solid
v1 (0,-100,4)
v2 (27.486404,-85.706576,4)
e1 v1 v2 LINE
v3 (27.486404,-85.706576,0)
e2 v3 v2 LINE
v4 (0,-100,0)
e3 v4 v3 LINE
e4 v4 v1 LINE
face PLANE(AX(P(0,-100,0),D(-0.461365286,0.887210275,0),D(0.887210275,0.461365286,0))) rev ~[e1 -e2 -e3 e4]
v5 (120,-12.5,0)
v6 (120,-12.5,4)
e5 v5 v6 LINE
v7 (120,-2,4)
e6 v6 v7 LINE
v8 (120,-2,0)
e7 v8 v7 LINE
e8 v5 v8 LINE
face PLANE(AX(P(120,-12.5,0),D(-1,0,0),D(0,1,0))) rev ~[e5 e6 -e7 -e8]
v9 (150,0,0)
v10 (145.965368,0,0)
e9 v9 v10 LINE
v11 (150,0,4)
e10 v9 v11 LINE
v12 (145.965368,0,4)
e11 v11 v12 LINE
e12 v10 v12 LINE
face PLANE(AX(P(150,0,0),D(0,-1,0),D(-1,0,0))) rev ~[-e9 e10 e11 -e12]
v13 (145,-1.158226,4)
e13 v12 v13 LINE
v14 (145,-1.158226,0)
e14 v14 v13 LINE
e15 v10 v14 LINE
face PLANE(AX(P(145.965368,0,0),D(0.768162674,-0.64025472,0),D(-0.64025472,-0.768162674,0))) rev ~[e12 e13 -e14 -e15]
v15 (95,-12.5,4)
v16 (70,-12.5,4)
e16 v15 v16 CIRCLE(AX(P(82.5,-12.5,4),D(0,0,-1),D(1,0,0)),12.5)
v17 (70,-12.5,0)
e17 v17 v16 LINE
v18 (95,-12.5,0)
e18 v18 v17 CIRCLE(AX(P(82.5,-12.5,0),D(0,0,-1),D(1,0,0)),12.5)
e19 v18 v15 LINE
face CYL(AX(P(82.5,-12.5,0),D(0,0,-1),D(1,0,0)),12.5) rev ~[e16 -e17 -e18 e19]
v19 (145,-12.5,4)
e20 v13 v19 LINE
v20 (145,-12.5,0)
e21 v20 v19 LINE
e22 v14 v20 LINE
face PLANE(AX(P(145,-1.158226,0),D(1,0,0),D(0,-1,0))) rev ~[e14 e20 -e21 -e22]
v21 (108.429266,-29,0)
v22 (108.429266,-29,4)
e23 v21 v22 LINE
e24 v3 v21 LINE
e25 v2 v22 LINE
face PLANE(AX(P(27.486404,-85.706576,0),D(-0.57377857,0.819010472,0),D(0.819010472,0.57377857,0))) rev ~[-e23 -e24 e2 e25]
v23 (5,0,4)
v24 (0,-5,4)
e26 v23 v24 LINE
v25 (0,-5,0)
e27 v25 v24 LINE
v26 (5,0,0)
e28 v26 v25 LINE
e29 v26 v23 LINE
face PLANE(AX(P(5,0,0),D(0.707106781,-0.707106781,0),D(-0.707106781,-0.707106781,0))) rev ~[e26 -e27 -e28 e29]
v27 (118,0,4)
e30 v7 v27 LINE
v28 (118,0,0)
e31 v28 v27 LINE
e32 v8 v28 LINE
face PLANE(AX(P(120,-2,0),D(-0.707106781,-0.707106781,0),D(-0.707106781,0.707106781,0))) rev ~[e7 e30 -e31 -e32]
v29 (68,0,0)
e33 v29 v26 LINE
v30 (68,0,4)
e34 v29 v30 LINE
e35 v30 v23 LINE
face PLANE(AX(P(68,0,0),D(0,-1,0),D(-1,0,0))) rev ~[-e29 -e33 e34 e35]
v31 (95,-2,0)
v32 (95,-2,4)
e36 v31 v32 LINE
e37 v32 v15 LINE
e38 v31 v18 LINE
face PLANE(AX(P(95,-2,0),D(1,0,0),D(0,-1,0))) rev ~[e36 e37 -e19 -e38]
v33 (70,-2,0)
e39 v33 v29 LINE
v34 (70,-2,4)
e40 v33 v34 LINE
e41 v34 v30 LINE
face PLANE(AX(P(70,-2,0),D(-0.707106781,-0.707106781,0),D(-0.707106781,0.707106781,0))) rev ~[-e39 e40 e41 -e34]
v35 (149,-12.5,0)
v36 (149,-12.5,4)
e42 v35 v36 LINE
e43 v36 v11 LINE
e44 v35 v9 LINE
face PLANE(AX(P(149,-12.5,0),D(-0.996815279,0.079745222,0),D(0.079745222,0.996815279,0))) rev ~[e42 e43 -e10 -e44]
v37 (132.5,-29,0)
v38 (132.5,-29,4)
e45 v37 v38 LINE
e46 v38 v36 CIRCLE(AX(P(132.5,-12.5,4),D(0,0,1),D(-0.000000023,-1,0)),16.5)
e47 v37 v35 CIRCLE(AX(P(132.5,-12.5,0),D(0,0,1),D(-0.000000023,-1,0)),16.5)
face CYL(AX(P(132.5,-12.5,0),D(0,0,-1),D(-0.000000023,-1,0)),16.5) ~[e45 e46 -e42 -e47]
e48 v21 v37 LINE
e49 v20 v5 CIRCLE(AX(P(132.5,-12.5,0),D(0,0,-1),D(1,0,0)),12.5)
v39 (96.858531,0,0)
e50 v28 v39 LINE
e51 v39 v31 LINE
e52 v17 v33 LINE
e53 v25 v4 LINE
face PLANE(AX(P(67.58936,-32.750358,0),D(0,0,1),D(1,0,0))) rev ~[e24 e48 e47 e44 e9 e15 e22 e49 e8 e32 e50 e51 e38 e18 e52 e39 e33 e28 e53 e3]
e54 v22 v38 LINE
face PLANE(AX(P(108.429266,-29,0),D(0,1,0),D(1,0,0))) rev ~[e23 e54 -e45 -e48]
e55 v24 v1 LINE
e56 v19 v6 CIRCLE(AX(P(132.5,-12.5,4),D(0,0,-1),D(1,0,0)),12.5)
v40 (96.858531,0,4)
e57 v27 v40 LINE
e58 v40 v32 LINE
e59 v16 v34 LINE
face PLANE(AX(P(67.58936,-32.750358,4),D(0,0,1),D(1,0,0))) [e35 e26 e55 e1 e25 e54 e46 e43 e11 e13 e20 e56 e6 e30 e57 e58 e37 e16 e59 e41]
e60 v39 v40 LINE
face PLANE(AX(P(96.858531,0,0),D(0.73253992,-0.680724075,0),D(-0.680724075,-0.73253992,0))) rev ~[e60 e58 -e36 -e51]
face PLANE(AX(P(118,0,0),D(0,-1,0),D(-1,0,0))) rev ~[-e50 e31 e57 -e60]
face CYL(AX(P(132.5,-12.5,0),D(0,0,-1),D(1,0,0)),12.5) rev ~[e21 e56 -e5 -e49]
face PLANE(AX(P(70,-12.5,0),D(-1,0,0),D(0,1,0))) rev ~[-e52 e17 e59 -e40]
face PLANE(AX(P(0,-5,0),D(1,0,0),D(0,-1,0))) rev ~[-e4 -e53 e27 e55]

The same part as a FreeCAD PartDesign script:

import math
import FreeCAD as App
import Part
import Sketcher

V = App.Vector
Q = App.Units.Quantity

doc = App.newDocument("Part")
body = doc.addObject("PartDesign::Body", "Body")

sketch1 = doc.addObject("Sketcher::SketchObject", "Sketch")
body.addObject(sketch1)
sketch1.AttachmentSupport = (doc.XY_Plane, [""])
sketch1.MapMode = "FlatFace"
sketch1.addGeometry([
    Part.LineSegment(V(5, 0, 0), V(0, -5, 0)),
    Part.LineSegment(V(0, -5, 0), V(0, -100, 0)),
    Part.LineSegment(V(0, -100, 0), V(27.5, -85.7, 0)),
    Part.LineSegment(V(27.5, -85.7, 0), V(108.4, -29, 0)),
    Part.LineSegment(V(108.4, -29, 0), V(132.5, -29, 0)),
    Part.ArcOfCircle(Part.Circle(V(132.5, -12.5, 0), V(0, 0, 1), 16.5), math.radians(-90), math.radians(0)),
    Part.LineSegment(V(149, -12.5, 0), V(150, 0, 0)),
    Part.LineSegment(V(150, 0, 0), V(146, 0, 0)),
    Part.LineSegment(V(146, 0, 0), V(145, -1.2, 0)),
    Part.LineSegment(V(145, -1.2, 0), V(145, -12.5, 0)),
    Part.ArcOfCircle(Part.Circle(V(132.5, -12.5, 0), V(0, 0, 1), 12.5), math.radians(180), math.radians(360)),
    Part.LineSegment(V(120, -12.5, 0), V(120, -2, 0)),
    Part.LineSegment(V(120, -2, 0), V(118, 0, 0)),
    Part.LineSegment(V(118, 0, 0), V(96.9, 0, 0)),
    Part.LineSegment(V(96.9, 0, 0), V(95, -2, 0)),
    Part.LineSegment(V(95, -2, 0), V(95, -12.5, 0)),
    Part.ArcOfCircle(Part.Circle(V(82.5, -12.5, 0), V(0, 0, 1), 12.5), math.radians(180), math.radians(360)),
    Part.LineSegment(V(70, -12.5, 0), V(70, -2, 0)),
    Part.LineSegment(V(70, -2, 0), V(68, 0, 0)),
    Part.LineSegment(V(68, 0, 0), V(5, 0, 0)),
], False)
sketch1.addConstraint([
    Sketcher.Constraint("Coincident", 0, 2, 1, 1),
    Sketcher.Constraint("Coincident", 1, 2, 2, 1),
    Sketcher.Constraint("Coincident", 2, 2, 3, 1),
    Sketcher.Constraint("Coincident", 3, 2, 4, 1),
    Sketcher.Constraint("Tangent", 4, 2, 5, 1),
    Sketcher.Constraint("Coincident", 5, 2, 6, 1),
    Sketcher.Constraint("Coincident", 6, 2, 7, 1),
    Sketcher.Constraint("Coincident", 7, 2, 8, 1),
    Sketcher.Constraint("Coincident", 8, 2, 9, 1),
    Sketcher.Constraint("Tangent", 9, 2, 10, 2),
    Sketcher.Constraint("Tangent", 10, 1, 11, 1),
    Sketcher.Constraint("Coincident", 11, 2, 12, 1),
    Sketcher.Constraint("Coincident", 12, 2, 13, 1),
    Sketcher.Constraint("Coincident", 13, 2, 14, 1),
    Sketcher.Constraint("Coincident", 14, 2, 15, 1),
    Sketcher.Constraint("Tangent", 15, 2, 16, 2),
    Sketcher.Constraint("Tangent", 16, 1, 17, 1),
    Sketcher.Constraint("Coincident", 17, 2, 18, 1),
    Sketcher.Constraint("Coincident", 18, 2, 19, 1),
    Sketcher.Constraint("Coincident", 19, 2, 0, 1),
    Sketcher.Constraint("Vertical", 1),
    Sketcher.Constraint("Horizontal", 4),
    Sketcher.Constraint("Horizontal", 7),
    Sketcher.Constraint("Vertical", 9),
    Sketcher.Constraint("Vertical", 11),
    Sketcher.Constraint("Horizontal", 13),
    Sketcher.Constraint("Vertical", 15),
    Sketcher.Constraint("Vertical", 17),
    Sketcher.Constraint("Horizontal", 19),
    Sketcher.Constraint("Coincident", 10, 3, 5, 3),
    Sketcher.Constraint("Equal", 10, 16),
    Sketcher.Constraint("PointOnObject", 0, 2, -2),
    Sketcher.Constraint("PointOnObject", 6, 2, -1),
    Sketcher.Constraint("PointOnObject", 12, 2, -1),
    Sketcher.Constraint("PointOnObject", 18, 2, -1),
    Sketcher.Constraint("Perpendicular", 0, 12),
    Sketcher.Constraint("Parallel", 12, 18),
    Sketcher.Constraint("Horizontal", 10, 3, 16, 3),
    Sketcher.Constraint("Horizontal", 16, 3, 5, 2),
    Sketcher.Constraint("Horizontal", 11, 2, 14, 2),
    Sketcher.Constraint("Horizontal", 14, 2, 17, 2),
    Sketcher.Constraint("Radius", 5, Q("16.5 mm")),
    Sketcher.Constraint("Radius", 10, Q("12.5 mm")),
    Sketcher.Constraint("DistanceX", 19, 2, 19, 1, Q("63 mm")),
    Sketcher.Constraint("DistanceY", 1, 2, 1, 1, Q("95 mm")),
    Sketcher.Constraint("Angle", 0, Q("-135 deg")),
    Sketcher.Constraint("DistanceY", 11, 1, 11, 2, Q("10.5 mm")),
    Sketcher.Constraint("DistanceY", 0, 2, -1, 1, Q("5 mm")),
    Sketcher.Constraint("DistanceY", 3, 2, -1, 1, Q("29 mm")),
    Sketcher.Constraint("DistanceX", -1, 1, 5, 2, Q("149 mm")),
    Sketcher.Constraint("DistanceX", -1, 1, 6, 2, Q("150 mm")),
    Sketcher.Constraint("DistanceX", 7, 2, 7, 1, Q("4.034632 mm")),
    Sketcher.Constraint("DistanceX", 13, 2, 13, 1, Q("21.141469 mm")),
    Sketcher.Constraint("Distance", 2, Q("30.98071 mm")),
    Sketcher.Constraint("Distance", 3, Q("98.83007 mm")),
    Sketcher.Constraint("DistanceX", 4, 1, 4, 2, Q("24.070734 mm")),
    Sketcher.Constraint("DistanceY", 9, 2, 9, 1, Q("11.341774 mm")),
])
pad1 = doc.addObject("PartDesign::Pad", "Pad")
body.addObject(pad1)
pad1.Profile = sketch1
pad1.Length = 4

doc.recompute()
